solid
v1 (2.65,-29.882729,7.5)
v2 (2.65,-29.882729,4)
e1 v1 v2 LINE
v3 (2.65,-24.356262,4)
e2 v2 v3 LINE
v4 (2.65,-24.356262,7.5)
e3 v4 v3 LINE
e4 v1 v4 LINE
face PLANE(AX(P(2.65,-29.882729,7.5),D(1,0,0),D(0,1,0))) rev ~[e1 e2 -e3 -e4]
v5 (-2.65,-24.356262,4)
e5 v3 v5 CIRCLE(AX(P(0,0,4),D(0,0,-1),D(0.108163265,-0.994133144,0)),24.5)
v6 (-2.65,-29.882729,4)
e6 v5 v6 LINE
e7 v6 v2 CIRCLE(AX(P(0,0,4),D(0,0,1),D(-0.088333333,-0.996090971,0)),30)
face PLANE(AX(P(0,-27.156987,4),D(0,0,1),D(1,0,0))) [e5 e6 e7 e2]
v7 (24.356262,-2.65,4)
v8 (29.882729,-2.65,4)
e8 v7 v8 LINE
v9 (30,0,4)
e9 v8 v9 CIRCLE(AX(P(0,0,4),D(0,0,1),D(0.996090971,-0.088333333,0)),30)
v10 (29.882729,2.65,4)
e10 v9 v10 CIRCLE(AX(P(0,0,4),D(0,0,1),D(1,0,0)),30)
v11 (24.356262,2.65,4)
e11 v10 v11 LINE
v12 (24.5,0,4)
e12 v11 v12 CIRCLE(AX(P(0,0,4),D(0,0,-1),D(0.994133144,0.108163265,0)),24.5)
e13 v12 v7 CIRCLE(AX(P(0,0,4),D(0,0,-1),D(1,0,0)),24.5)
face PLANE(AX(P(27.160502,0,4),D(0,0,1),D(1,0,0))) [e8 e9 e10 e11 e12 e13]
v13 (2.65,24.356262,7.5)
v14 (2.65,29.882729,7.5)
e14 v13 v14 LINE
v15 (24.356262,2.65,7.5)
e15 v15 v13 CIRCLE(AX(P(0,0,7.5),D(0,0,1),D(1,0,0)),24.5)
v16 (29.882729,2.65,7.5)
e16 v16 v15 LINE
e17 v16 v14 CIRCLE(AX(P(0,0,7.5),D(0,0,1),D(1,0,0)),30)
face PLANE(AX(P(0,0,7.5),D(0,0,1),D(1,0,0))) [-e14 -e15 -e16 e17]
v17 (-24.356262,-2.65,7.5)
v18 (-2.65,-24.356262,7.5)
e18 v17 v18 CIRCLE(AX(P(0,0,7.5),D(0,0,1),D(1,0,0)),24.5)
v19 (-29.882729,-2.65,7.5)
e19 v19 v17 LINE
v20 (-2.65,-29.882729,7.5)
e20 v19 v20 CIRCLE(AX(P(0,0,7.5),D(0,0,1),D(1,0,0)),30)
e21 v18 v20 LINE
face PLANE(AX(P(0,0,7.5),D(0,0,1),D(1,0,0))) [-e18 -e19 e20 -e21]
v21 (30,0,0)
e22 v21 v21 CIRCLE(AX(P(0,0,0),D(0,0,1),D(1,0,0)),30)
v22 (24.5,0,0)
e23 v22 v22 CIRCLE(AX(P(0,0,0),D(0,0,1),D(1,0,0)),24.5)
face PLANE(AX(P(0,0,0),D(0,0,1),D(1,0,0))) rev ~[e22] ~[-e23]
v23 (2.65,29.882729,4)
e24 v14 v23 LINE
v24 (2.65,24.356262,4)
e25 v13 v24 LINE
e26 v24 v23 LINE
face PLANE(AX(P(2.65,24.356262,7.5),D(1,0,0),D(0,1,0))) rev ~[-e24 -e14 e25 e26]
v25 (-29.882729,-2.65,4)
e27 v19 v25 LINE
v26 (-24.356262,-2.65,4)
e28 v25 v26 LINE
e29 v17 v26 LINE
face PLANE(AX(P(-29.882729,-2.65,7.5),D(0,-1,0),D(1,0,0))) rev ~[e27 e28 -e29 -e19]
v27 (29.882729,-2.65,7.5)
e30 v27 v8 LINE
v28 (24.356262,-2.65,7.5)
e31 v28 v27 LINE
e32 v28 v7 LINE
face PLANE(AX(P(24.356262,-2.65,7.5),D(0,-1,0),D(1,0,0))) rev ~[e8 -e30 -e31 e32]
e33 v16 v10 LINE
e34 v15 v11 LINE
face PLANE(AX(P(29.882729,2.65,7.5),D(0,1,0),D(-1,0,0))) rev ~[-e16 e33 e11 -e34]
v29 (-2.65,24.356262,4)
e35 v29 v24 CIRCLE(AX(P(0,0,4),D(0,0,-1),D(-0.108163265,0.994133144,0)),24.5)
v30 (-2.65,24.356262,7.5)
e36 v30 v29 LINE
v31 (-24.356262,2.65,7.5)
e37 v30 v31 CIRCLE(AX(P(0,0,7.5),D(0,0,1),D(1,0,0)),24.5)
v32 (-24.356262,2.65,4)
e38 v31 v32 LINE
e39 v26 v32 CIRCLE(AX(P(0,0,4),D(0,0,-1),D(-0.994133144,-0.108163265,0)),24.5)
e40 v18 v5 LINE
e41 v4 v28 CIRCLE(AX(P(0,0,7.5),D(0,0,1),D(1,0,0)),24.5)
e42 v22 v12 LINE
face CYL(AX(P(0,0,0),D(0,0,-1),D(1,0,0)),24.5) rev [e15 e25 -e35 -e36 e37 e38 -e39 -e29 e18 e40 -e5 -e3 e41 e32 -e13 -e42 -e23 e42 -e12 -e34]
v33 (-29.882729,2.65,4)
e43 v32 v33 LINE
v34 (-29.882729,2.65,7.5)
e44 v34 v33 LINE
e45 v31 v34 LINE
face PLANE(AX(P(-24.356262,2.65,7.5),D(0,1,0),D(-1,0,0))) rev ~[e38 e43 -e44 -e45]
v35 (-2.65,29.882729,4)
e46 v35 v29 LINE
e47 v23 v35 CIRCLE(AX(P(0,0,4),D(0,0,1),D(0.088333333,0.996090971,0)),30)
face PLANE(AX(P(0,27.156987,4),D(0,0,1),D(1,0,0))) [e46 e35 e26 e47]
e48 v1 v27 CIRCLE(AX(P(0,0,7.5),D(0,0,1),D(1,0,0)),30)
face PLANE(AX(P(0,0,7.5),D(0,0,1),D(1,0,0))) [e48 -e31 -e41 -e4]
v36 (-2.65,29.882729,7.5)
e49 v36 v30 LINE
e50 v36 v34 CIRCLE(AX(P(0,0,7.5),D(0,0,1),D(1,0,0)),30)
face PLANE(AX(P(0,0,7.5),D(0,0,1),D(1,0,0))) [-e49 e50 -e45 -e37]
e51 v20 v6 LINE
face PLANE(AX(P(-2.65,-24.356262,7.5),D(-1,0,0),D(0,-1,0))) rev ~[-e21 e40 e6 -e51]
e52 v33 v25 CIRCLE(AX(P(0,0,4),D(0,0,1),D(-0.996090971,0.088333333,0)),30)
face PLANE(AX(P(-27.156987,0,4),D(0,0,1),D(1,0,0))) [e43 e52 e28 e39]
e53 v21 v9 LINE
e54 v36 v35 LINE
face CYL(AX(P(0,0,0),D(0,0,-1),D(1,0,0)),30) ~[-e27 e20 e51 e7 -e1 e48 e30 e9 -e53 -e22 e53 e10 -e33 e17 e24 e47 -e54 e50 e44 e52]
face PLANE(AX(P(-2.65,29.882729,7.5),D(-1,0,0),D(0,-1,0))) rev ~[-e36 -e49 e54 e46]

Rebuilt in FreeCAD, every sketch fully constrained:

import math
import FreeCAD as App
import Part
import Sketcher
from FreeCAD import Vector
Q = App.Units.Quantity

doc = App.newDocument("Part")
params = doc.addObject("Spreadsheet::Sheet", "Params")
for row, (alias, value) in enumerate([
    ("sketch1_diameter", "60 mm"),
    ("sketch1_diameter2", "49 mm"),
    ("pad1_length", "7.5 mm"),
    ("sketch2_radius", "30 mm"),
    ("sketch2_radius2", "24.5 mm"),
    ("pocket1_length", "3.5 mm"),
], start=1):
    params.set(f"A{row}", alias)
    params.set(f"B{row}", "=" + value)
    params.setAlias(f"B{row}", alias)

body = doc.addObject("PartDesign::Body", "Body")

# Sketch on XY plane
sketch1 = body.newObject("Sketcher::SketchObject", "Sketch")
sketch1.AttachmentSupport = (doc.getObject("XY_Plane"), [""])
sketch1.MapMode = "FlatFace"
sketch1.addGeometry(Part.Circle(Vector(0, 0, 0), Vector(0, 0, 1), 30), False)
sketch1.addGeometry(Part.Circle(Vector(0, 0, 0), Vector(0, 0, 1), 24), False)
sketch1.addConstraint(Sketcher.Constraint("Coincident", 0, 3, -1, 1))
sketch1.addConstraint(Sketcher.Constraint("Coincident", 1, 3, -1, 1))
sketch1.addConstraint(Sketcher.Constraint("Diameter", 0, Q("60 mm")))
sketch1.addConstraint(Sketcher.Constraint("Diameter", 1, Q("49 mm")))
sketch1.setExpression("Constraints[2]", "Params.sketch1_diameter")
sketch1.setExpression("Constraints[3]", "Params.sketch1_diameter2")
pad1 = body.newObject("PartDesign::Pad", "Pad")
pad1.Profile = sketch1
pad1.setExpression("Length", "Params.pad1_length")

# Sketch on XY plane
sketch2 = body.newObject("Sketcher::SketchObject", "Sketch001")
sketch2.AttachmentSupport = (doc.getObject("XY_Plane"), [""])
sketch2.MapMode = "FlatFace"
sketch2.AttachmentOffset = App.Placement(Vector(0, 0, 7.5), App.Rotation())
sketch2.addGeometry(Part.LineSegment(Vector(-2.6, -24.4, 0), Vector(-2.6, -29.9, 0)), False)
sketch2.addGeometry(Part.ArcOfCircle(Part.Circle(Vector(0, 0, 0), Vector(0, 0, 1), 30), math.radians(-95.07), math.radians(-84.93)), False)
sketch2.addGeometry(Part.LineSegment(Vector(2.6, -29.9, 0), Vector(2.6, -24.4, 0)), False)
sketch2.addGeometry(Part.ArcOfCircle(Part.Circle(Vector(0, 0, 0), Vector(0, 0, 1), 24.5), math.radians(-96.21), math.radians(-83.79)), False)
sketch2.addGeometry(Part.ArcOfCircle(Part.Circle(Vector(0, 0, 0), Vector(0, 0, 1), 30), math.radians(0), math.radians(5.07)), False)
sketch2.addGeometry(Part.LineSegment(Vector(29.9, 2.6, 0), Vector(24.4, 2.6, 0)), False)
sketch2.addGeometry(Part.ArcOfCircle(Part.Circle(Vector(0, 0, 0), Vector(0, 0, 1), 24.5), math.radians(0), math.radians(6.21)), False)
sketch2.addGeometry(Part.ArcOfCircle(Part.Circle(Vector(0, 0, 0), Vector(0, 0, 1), 24.5), math.radians(-6.21), math.radians(0)), False)
sketch2.addGeometry(Part.LineSegment(Vector(24.4, -2.6, 0), Vector(29.9, -2.6, 0)), False)
sketch2.addGeometry(Part.ArcOfCircle(Part.Circle(Vector(0, 0, 0), Vector(0, 0, 1), 30), math.radians(-5.07), math.radians(0)), False)
sketch2.addGeometry(Part.ArcOfCircle(Part.Circle(Vector(0, 0, 0), Vector(0, 0, 1), 30), math.radians(84.93), math.radians(95.07)), False)
sketch2.addGeometry(Part.LineSegment(Vector(-2.6, 29.9, 0), Vector(-2.6, 24.4, 0)), False)
sketch2.addGeometry(Part.ArcOfCircle(Part.Circle(Vector(0, 0, 0), Vector(0, 0, 1), 24.5), math.radians(83.79), math.radians(96.21)), False)
sketch2.addGeometry(Part.LineSegment(Vector(2.6, 24.4, 0), Vector(2.6, 29.9, 0)), False)
sketch2.addGeometry(Part.LineSegment(Vector(-24.4, 2.6, 0), Vector(-29.9, 2.6, 0)), False)
sketch2.addGeometry(Part.ArcOfCircle(Part.Circle(Vector(0, 0, 0), Vector(0, 0, 1), 30), math.radians(174.93), math.radians(185.07)), False)
sketch2.addGeometry(Part.LineSegment(Vector(-29.9, -2.6, 0), Vector(-24.4, -2.6, 0)), False)
sketch2.addGeometry(Part.ArcOfCircle(Part.Circle(Vector(0, 0, 0), Vector(0, 0, 1), 24.5), math.radians(173.79), math.radians(186.21)), False)
sketch2.addConstraint(Sketcher.Constraint("Coincident", 0, 2, 1, 1))
sketch2.addConstraint(Sketcher.Constraint("Coincident", 1, 2, 2, 1))
sketch2.addConstraint(Sketcher.Constraint("Coincident", 2, 2, 3, 2))
sketch2.addConstraint(Sketcher.Constraint("Coincident", 3, 1, 0, 1))
sketch2.addConstraint(Sketcher.Constraint("Coincident", 4, 2, 5, 1))
sketch2.addConstraint(Sketcher.Constraint("Coincident", 5, 2, 6, 2))
sketch2.addConstraint(Sketcher.Constraint("Tangent", 6, 1, 7, 2))
sketch2.addConstraint(Sketcher.Constraint("Coincident", 7, 1, 8, 1))
sketch2.addConstraint(Sketcher.Constraint("Coincident", 8, 2, 9, 1))
sketch2.addConstraint(Sketcher.Constraint("Tangent", 9, 2, 4, 1))
sketch2.addConstraint(Sketcher.Constraint("Coincident", 10, 2, 11, 1))
sketch2.addConstraint(Sketcher.Constraint("Coincident", 11, 2, 12, 2))
sketch2.addConstraint(Sketcher.Constraint("Coincident", 12, 1, 13, 1))
sketch2.addConstraint(Sketcher.Constraint("Coincident", 13, 2, 10, 1))
sketch2.addConstraint(Sketcher.Constraint("Coincident", 14, 2, 15, 1))
sketch2.addConstraint(Sketcher.Constraint("Coincident", 15, 2, 16, 1))
sketch2.addConstraint(Sketcher.Constraint("Coincident", 16, 2, 17, 2))
sketch2.addConstraint(Sketcher.Constraint("Coincident", 17, 1, 14, 1))
sketch2.addConstraint(Sketcher.Constraint("Vertical", 0))
sketch2.addConstraint(Sketcher.Constraint("Vertical", 2))
sketch2.addConstraint(Sketcher.Constraint("Horizontal", 5))
sketch2.addConstraint(Sketcher.Constraint("Horizontal", 8))
sketch2.addConstraint(Sketcher.Constraint("Vertical", 11))
sketch2.addConstraint(Sketcher.Constraint("Vertical", 13))
sketch2.addConstraint(Sketcher.Constraint("Horizontal", 14))
sketch2.addConstraint(Sketcher.Constraint("Horizontal", 16))
sketch2.addConstraint(Sketcher.Constraint("Coincident", 1, 3, -1, 1))
sketch2.addConstraint(Sketcher.Constraint("Coincident", 3, 3, -1, 1))
sketch2.addConstraint(Sketcher.Constraint("Coincident", 4, 3, -1, 1))
sketch2.addConstraint(Sketcher.Constraint("Coincident", 6, 3, -1, 1))
sketch2.addConstraint(Sketcher.Constraint("Coincident", 10, 3, -1, 1))
sketch2.addConstraint(Sketcher.Constraint("Coincident", 12, 3, -1, 1))
sketch2.addConstraint(Sketcher.Constraint("Coincident", 15, 3, -1, 1))
sketch2.addConstraint(Sketcher.Constraint("Coincident", 17, 3, -1, 1))
sketch2.addConstraint(Sketcher.Constraint("Equal", 1, 4))
sketch2.addConstraint(Sketcher.Constraint("Equal", 3, 6))
sketch2.addConstraint(Sketcher.Constraint("Equal", 6, 7))
sketch2.addConstraint(Sketcher.Constraint("Equal", 4, 9))
sketch2.addConstraint(Sketcher.Constraint("Equal", 9, 10))
sketch2.addConstraint(Sketcher.Constraint("Equal", 7, 12))
sketch2.addConstraint(Sketcher.Constraint("Equal", 10, 15))
sketch2.addConstraint(Sketcher.Constraint("Equal", 12, 17))
sketch2.addConstraint(Sketcher.Constraint("PointOnObject", 6, 1, -1))
sketch2.addConstraint(Sketcher.Constraint("PointOnObject", 9, 2, -1))
sketch2.addConstraint(Sketcher.Constraint("Horizontal", 0, 2, 1, 2))
sketch2.addConstraint(Sketcher.Constraint("Horizontal", 11, 2, 12, 1))
sketch2.addConstraint(Sketcher.Constraint("Horizontal", 5, 2, 14, 2))
sketch2.addConstraint(Sketcher.Constraint("Horizontal", 8, 2, 15, 2))
sketch2.addConstraint(Sketcher.Constraint("Vertical", 5, 2, 7, 1))
sketch2.addConstraint(Sketcher.Constraint("Vertical", 3, 1, 10, 2))
sketch2.addConstraint(Sketcher.Constraint("Equal", 16, 0))
sketch2.addConstraint(Sketcher.Constraint("Radius", 1, Q("30 mm")))
sketch2.addConstraint(Sketcher.Constraint("Radius", 3, Q("24.5 mm")))
sketch2.addConstraint(Sketcher.Constraint("DistanceX", 0, 2, 1, 2, Q("5.3 mm")))
sketch2.setExpression("Constraints[51]", "Params.sketch2_radius")
sketch2.setExpression("Constraints[52]", "Params.sketch2_radius2")
pocket1 = body.newObject("PartDesign::Pocket", "Pocket")
pocket1.Profile = sketch2
pocket1.setExpression("Length", "Params.pocket1_length")

doc.recompute()
